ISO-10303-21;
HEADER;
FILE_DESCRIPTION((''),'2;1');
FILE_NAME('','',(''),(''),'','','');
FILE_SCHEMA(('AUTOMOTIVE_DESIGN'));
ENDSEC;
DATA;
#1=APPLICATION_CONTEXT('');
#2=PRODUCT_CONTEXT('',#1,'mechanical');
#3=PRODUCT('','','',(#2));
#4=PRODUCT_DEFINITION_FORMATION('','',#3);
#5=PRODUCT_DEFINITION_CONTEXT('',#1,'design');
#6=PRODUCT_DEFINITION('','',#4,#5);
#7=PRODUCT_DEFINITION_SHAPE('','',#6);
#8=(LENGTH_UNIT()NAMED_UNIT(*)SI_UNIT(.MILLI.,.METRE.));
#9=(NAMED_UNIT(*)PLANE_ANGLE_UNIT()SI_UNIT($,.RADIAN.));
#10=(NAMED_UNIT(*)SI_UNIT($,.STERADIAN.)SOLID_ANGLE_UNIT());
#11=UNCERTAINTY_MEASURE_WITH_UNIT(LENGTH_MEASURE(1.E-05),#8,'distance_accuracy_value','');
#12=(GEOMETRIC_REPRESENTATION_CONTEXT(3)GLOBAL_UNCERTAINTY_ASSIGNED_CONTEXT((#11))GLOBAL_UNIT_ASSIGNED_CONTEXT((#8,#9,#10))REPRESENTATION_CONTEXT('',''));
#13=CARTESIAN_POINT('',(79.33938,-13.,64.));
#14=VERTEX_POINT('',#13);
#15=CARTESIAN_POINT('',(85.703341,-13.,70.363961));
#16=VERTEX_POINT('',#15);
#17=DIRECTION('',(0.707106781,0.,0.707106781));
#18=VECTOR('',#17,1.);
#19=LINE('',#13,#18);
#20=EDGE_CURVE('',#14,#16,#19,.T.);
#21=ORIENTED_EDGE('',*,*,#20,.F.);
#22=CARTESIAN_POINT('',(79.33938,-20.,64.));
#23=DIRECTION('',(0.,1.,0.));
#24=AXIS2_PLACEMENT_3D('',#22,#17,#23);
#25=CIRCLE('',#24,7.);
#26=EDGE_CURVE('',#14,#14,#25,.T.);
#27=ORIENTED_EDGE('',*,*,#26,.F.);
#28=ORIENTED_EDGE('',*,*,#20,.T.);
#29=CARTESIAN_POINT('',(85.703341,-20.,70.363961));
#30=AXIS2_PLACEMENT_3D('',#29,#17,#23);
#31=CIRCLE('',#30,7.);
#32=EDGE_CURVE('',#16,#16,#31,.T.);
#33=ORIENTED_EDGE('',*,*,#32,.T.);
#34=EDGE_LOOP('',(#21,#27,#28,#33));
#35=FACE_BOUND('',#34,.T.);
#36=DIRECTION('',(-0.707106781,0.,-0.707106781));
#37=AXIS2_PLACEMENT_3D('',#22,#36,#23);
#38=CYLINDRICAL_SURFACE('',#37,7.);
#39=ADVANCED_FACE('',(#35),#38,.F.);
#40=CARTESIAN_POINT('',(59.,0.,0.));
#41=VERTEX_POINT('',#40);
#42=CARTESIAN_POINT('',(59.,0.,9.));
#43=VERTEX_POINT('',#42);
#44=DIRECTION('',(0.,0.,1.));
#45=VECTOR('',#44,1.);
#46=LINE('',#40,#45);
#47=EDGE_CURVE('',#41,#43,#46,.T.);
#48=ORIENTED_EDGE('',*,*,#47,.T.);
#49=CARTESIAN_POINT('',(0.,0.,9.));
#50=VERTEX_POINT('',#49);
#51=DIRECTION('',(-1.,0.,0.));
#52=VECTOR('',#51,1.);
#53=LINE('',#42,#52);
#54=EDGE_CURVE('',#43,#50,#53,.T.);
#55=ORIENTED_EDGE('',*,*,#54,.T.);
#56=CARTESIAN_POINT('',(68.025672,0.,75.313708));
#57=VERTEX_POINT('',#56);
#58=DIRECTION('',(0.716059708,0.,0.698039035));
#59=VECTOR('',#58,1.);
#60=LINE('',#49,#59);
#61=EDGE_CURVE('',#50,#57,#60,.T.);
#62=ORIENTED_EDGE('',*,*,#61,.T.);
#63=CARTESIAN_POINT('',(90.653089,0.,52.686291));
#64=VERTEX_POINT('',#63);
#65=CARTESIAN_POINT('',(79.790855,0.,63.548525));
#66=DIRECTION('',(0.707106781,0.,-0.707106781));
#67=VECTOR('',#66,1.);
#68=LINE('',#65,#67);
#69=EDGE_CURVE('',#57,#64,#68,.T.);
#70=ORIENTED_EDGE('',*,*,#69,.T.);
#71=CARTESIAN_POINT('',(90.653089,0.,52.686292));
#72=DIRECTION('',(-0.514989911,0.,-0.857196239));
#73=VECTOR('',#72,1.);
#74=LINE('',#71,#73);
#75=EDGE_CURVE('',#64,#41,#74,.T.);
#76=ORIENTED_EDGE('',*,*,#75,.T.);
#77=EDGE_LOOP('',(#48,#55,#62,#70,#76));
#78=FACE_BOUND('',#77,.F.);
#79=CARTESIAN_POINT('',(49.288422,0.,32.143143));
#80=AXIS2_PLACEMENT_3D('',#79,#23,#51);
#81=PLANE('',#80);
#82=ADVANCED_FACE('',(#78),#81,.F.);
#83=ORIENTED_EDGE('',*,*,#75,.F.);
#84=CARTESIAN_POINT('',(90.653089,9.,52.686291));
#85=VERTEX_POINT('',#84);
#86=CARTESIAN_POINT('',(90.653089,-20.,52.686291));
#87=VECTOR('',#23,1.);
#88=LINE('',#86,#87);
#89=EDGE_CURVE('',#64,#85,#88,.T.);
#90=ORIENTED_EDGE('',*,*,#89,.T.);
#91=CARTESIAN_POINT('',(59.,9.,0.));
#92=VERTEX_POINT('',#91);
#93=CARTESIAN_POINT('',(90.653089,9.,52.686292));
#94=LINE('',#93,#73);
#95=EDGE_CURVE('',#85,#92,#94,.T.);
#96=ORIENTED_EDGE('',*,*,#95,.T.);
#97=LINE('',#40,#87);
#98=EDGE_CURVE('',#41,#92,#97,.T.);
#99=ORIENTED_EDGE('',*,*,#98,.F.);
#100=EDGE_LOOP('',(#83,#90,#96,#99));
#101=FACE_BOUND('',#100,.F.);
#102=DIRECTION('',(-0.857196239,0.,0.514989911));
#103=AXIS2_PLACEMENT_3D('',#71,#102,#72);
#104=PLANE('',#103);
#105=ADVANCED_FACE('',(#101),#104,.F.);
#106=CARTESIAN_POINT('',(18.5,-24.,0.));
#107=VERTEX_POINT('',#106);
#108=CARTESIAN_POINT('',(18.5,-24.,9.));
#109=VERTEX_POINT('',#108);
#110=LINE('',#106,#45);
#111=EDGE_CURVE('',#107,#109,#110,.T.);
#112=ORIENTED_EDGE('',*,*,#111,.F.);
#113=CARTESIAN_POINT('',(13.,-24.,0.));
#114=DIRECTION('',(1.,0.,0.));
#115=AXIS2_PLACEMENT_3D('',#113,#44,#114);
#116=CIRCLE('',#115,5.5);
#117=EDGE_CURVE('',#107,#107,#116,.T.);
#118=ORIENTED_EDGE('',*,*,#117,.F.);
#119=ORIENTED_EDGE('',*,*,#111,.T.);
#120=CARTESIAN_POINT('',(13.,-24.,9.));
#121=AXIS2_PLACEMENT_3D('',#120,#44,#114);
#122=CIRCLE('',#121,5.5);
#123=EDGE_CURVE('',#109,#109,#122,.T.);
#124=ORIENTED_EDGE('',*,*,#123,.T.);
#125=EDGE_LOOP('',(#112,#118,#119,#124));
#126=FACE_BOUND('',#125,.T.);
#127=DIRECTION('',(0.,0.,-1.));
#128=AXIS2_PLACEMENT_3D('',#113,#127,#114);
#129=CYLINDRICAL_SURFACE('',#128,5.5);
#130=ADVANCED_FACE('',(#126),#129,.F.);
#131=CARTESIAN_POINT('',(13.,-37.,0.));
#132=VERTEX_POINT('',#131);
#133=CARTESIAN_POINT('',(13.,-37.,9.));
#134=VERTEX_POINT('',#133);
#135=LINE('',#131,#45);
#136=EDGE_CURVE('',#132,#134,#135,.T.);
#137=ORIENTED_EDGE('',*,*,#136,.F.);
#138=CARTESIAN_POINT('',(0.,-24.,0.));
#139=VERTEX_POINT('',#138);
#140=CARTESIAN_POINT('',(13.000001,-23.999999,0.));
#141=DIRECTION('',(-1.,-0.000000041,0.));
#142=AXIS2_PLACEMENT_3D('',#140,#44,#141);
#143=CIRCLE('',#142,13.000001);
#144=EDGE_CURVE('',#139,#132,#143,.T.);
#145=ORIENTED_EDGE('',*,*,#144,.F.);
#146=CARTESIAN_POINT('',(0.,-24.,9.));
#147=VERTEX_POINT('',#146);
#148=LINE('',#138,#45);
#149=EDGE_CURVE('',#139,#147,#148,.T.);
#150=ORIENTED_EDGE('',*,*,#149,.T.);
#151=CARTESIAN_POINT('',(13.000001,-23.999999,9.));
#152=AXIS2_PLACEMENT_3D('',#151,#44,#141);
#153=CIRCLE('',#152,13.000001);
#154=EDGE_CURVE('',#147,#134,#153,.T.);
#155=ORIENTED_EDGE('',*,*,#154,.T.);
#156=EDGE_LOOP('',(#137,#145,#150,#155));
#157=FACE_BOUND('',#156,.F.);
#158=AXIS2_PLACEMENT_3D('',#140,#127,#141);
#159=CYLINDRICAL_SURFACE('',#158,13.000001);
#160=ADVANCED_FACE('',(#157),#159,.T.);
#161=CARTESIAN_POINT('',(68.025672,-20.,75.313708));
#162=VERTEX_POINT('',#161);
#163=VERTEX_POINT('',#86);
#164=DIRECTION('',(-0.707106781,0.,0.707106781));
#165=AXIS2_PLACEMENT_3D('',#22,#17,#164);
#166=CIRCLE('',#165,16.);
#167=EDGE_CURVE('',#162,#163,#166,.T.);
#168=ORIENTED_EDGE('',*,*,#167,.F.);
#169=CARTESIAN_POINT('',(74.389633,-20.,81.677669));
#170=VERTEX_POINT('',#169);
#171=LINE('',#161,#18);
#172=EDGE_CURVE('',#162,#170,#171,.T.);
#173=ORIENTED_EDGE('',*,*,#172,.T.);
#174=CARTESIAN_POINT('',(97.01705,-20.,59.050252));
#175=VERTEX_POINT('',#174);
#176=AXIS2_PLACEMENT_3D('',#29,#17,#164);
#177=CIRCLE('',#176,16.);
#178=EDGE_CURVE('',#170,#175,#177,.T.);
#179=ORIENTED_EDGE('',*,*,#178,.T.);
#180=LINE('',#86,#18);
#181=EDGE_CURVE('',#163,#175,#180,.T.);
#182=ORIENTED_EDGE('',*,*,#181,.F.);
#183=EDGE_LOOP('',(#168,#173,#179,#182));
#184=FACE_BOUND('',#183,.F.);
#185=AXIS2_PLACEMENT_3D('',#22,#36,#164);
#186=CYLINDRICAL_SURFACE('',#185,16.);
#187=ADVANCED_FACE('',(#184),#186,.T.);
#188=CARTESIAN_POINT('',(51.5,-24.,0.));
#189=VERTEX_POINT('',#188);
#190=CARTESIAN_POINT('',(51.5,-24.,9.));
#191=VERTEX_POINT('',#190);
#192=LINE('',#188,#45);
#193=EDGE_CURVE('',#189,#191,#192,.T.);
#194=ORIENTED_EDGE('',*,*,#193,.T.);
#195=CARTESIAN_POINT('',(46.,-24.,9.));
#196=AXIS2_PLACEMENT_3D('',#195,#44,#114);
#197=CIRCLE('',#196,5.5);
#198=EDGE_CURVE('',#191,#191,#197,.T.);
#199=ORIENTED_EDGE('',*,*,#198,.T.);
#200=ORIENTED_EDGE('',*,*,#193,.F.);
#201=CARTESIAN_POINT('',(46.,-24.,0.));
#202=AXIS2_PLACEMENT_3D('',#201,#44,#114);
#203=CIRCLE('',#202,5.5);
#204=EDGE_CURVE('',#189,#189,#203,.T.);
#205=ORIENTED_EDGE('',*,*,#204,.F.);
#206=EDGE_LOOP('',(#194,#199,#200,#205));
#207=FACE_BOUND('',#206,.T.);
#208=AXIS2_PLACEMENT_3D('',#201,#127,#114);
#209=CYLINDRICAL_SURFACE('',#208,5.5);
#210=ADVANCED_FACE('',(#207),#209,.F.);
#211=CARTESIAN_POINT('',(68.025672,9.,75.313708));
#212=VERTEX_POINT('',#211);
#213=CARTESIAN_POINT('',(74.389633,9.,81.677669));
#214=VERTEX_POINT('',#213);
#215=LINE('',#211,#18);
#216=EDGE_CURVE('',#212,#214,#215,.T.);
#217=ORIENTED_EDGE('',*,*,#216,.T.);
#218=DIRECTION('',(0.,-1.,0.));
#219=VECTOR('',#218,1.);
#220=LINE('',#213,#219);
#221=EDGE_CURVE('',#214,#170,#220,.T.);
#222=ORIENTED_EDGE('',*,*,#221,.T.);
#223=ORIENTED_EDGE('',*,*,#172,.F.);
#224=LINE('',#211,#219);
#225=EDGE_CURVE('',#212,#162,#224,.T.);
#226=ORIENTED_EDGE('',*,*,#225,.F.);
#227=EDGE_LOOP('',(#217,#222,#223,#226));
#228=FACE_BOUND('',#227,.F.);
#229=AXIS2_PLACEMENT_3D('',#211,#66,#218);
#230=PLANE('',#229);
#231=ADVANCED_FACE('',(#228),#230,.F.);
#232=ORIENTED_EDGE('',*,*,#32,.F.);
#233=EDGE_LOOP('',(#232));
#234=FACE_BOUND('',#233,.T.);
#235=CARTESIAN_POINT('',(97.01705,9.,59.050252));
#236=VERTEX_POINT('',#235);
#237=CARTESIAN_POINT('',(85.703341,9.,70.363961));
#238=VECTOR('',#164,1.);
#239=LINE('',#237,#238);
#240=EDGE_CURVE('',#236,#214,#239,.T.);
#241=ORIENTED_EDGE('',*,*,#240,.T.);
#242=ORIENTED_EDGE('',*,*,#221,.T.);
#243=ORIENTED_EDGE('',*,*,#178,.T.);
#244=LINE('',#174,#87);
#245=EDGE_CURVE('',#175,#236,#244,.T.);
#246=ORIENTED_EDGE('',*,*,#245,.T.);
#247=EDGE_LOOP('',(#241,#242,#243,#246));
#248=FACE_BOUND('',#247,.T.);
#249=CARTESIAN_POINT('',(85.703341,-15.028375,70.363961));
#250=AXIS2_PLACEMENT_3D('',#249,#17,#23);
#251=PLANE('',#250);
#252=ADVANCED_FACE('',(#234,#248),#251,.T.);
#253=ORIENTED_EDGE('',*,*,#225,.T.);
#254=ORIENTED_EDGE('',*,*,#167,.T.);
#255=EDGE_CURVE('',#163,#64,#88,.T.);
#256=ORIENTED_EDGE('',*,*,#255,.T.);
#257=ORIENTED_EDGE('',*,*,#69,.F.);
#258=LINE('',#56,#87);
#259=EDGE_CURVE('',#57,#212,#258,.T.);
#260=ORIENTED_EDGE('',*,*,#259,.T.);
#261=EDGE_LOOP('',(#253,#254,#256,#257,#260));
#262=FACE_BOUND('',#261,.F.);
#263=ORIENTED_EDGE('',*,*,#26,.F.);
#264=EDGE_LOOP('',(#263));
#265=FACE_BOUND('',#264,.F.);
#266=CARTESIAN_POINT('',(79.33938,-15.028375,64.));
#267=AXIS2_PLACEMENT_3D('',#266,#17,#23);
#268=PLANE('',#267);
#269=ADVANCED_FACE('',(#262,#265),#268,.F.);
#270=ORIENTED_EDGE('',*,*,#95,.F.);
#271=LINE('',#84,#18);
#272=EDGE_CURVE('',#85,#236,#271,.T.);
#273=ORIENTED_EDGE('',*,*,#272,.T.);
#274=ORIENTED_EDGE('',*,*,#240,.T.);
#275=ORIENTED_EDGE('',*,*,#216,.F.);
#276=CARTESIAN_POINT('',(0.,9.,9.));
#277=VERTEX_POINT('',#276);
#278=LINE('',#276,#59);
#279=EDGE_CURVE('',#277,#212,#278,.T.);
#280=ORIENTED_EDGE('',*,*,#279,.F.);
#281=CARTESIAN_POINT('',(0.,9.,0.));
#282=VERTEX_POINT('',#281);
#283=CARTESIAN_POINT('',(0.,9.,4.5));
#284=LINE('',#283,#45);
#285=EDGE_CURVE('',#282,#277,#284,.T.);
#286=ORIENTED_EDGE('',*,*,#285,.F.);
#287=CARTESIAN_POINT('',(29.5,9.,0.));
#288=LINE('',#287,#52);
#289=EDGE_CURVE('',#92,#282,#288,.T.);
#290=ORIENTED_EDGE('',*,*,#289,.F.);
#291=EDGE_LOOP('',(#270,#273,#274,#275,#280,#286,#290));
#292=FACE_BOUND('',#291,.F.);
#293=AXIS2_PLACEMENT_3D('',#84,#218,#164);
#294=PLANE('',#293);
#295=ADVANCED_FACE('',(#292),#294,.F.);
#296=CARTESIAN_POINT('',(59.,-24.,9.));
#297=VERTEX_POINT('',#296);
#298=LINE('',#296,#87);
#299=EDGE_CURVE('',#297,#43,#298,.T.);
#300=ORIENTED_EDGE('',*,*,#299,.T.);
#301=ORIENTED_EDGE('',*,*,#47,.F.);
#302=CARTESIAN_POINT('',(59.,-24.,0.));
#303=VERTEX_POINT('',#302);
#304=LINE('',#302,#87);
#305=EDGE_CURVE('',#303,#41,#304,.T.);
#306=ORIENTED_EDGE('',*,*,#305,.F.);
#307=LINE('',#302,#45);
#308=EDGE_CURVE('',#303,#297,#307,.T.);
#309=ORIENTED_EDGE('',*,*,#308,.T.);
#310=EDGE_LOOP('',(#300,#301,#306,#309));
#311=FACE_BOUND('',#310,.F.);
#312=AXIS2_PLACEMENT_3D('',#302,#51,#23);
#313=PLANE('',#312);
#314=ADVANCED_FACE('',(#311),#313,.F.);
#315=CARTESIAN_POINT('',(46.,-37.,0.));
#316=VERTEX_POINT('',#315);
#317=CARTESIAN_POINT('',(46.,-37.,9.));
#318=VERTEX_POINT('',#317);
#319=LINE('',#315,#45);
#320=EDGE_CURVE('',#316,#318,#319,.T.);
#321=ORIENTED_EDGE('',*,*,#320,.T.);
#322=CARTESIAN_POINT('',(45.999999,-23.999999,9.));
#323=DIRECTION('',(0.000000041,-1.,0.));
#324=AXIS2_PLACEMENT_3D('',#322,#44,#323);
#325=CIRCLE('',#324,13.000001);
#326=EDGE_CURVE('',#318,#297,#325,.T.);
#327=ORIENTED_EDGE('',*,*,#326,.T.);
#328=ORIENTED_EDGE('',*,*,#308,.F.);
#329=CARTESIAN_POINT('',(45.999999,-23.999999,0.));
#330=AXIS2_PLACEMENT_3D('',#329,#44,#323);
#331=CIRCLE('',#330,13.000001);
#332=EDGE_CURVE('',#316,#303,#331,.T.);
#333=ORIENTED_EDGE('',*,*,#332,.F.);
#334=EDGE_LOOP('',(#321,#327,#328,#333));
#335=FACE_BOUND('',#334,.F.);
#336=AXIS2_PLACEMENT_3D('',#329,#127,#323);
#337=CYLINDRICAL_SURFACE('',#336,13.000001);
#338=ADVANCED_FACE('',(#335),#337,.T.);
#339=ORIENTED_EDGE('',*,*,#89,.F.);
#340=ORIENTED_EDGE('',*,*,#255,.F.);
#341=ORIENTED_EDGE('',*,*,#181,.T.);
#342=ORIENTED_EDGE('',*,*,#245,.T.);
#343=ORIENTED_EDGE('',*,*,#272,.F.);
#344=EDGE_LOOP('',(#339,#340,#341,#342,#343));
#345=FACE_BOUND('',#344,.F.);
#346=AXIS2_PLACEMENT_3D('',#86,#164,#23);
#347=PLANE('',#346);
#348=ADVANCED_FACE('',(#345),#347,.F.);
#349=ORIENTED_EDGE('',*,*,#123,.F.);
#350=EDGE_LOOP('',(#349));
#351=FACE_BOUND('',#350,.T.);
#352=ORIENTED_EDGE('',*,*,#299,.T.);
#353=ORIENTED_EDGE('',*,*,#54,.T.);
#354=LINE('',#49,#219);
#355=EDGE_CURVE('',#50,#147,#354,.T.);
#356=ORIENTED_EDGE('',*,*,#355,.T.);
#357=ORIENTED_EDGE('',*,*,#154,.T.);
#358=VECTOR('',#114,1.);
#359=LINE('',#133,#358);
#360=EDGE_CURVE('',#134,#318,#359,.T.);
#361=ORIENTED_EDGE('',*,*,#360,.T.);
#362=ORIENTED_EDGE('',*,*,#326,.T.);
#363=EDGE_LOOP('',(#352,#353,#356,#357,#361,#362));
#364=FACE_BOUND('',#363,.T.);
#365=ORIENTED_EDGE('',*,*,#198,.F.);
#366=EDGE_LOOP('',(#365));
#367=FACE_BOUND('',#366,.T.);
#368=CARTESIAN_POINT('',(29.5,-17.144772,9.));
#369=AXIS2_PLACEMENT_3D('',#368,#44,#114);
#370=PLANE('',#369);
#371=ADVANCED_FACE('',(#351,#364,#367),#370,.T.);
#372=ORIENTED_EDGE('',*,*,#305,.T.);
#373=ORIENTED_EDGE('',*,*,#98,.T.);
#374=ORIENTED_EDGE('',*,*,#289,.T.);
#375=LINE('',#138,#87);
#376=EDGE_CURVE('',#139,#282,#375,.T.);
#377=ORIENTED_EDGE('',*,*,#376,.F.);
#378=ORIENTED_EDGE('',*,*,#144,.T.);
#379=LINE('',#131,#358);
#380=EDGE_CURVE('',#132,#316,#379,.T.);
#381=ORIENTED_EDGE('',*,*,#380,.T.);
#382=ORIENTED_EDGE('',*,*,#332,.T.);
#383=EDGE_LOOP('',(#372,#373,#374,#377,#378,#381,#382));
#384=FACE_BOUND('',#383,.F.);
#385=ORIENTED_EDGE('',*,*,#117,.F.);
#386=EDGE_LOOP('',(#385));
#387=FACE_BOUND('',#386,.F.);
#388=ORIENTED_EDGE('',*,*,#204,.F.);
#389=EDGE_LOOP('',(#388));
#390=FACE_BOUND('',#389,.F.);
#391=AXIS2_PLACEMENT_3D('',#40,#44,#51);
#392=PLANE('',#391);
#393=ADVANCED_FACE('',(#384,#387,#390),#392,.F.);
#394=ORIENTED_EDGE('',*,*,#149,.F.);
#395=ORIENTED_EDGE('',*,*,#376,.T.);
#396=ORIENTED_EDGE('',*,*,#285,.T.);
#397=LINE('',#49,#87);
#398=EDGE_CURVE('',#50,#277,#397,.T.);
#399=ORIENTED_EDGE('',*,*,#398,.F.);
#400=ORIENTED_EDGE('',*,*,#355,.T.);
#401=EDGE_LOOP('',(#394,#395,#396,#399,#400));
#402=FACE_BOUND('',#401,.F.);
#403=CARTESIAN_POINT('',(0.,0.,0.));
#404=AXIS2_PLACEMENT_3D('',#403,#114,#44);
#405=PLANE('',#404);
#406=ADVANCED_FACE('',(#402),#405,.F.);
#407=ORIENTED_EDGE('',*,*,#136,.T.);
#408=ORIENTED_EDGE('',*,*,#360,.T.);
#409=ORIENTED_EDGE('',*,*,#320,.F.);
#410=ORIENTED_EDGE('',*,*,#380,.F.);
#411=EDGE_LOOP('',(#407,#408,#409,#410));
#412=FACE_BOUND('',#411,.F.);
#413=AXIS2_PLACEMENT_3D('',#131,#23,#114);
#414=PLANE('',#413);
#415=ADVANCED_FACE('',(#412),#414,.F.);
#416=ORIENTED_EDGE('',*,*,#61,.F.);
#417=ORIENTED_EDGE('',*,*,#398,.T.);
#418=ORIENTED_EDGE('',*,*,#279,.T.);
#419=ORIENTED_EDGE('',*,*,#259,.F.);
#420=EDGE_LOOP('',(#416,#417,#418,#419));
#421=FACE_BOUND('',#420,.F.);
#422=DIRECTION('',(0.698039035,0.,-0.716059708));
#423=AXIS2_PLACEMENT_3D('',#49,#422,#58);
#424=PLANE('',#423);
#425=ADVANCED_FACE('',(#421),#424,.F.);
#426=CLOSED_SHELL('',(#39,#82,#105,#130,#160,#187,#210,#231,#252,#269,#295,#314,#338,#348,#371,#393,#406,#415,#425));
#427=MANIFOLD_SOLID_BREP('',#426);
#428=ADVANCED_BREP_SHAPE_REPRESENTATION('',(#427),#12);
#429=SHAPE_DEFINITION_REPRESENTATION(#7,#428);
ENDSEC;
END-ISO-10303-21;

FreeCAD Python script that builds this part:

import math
import FreeCAD as App
import Part
import Sketcher

V = App.Vector
Q = App.Units.Quantity

doc = App.newDocument("Part")
body = doc.addObject("PartDesign::Body", "Body")

sketch1 = body.newObject("Sketcher::SketchObject", "Sketch")
sketch1.AttachmentSupport = (doc.getObject("XY_Plane"), [""])
sketch1.MapMode = "FlatFace"
sketch1.addGeometry([
    Part.LineSegment(V(59, 0, 0), V(0, 0, 0)),
    Part.LineSegment(V(0, 0, 0), V(0, -24, 0)),
    Part.ArcOfCircle(Part.Circle(V(13, -24, 0), V(0, 0, 1), 13), math.radians(-180), math.radians(-90)),
    Part.LineSegment(V(13, -37, 0), V(46, -37, 0)),
    Part.ArcOfCircle(Part.Circle(V(46, -24, 0), V(0, 0, 1), 13), math.radians(-90), math.radians(0)),
    Part.LineSegment(V(59, -24, 0), V(59, 0, 0)),
    Part.Circle(V(13, -24, 0), V(0, 0, 1), 6),
    Part.Circle(V(46, -24, 0), V(0, 0, 1), 6),
], False)
sketch1.addConstraint([
    Sketcher.Constraint("Coincident", 0, 2, 1, 1),
    Sketcher.Constraint("Tangent", 1, 2, 2, 1),
    Sketcher.Constraint("Tangent", 2, 2, 3, 1),
    Sketcher.Constraint("Tangent", 3, 2, 4, 1),
    Sketcher.Constraint("Tangent", 4, 2, 5, 1),
    Sketcher.Constraint("Coincident", 5, 2, 0, 1),
    Sketcher.Constraint("Horizontal", 0),
    Sketcher.Constraint("Vertical", 1),
    Sketcher.Constraint("Horizontal", 3),
    Sketcher.Constraint("Vertical", 5),
    Sketcher.Constraint("Coincident", 0, 2, -1, 1),
    Sketcher.Constraint("Coincident", 6, 3, 2, 3),
    Sketcher.Constraint("Coincident", 7, 3, 4, 3),
    Sketcher.Constraint("Equal", 2, 4),
    Sketcher.Constraint("Equal", 6, 7),
    Sketcher.Constraint("Diameter", 6, Q("11 mm")),
    Sketcher.Constraint("Radius", 2, Q("13.000001 mm")),
    Sketcher.Constraint("DistanceX", 0, 2, 0, 1, Q("59 mm")),
    Sketcher.Constraint("DistanceY", 1, 2, 1, 1, Q("24 mm")),
])
pad1 = body.newObject("PartDesign::Pad", "Pad")
pad1.Profile = sketch1
pad1.Length = 9

sketch2 = body.newObject("Sketcher::SketchObject", "Sketch001")
sketch2.AttachmentSupport = (doc.getObject("XZ_Plane"), [""])
sketch2.MapMode = "FlatFace"
sketch2.addGeometry([
    Part.LineSegment(V(91, 53, 0), V(59, 0, 0)),
    Part.LineSegment(V(59, 0, 0), V(0, 0, 0)),
    Part.LineSegment(V(0, 0, 0), V(0, 9, 0)),
    Part.LineSegment(V(0, 9, 0), V(68, 75, 0)),
    Part.LineSegment(V(68, 75, 0), V(91, 53, 0)),
], False)
sketch2.addConstraint([
    Sketcher.Constraint("Coincident", 0, 2, 1, 1),
    Sketcher.Constraint("Coincident", 1, 2, 2, 1),
    Sketcher.Constraint("Coincident", 2, 2, 3, 1),
    Sketcher.Constraint("Coincident", 3, 2, 4, 1),
    Sketcher.Constraint("Coincident", 4, 2, 0, 1),
    Sketcher.Constraint("Horizontal", 1),
    Sketcher.Constraint("Vertical", 2),
    Sketcher.Constraint("Coincident", 1, 2, -1, 1),
    Sketcher.Constraint("DistanceX", 1, 2, 1, 1, Q("59 mm")),
    Sketcher.Constraint("DistanceY", 2, 1, 2, 2, Q("9 mm")),
    Sketcher.Constraint("Angle", 4, Q("-44.999999 deg")),
    Sketcher.Constraint("Distance", 3, Q("95 mm")),
    Sketcher.Constraint("Distance", 4, Q("31.999999 mm")),
    Sketcher.Constraint("DistanceX", -1, 1, 3, 2, Q("68.025672 mm")),
])
pad2 = body.newObject("PartDesign::Pad", "Pad001")
pad2.Profile = sketch2
pad2.Length = 9
pad2.Reversed = True

sketch3 = body.newObject("Sketcher::SketchObject", "Sketch002")
sketch3.Placement = App.Placement(V(71.66969, 0, 71.66969), App.Rotation(V(0, 1, 0), V(-0.707106781, 0, 0.707106781), V(0.707106781, 0, 0.707106781), "ZXY"))
sketch3.addGeometry([
    Part.LineSegment(V(-20, -27, 0), V(9, -27, 0)),
    Part.LineSegment(V(9, -27, 0), V(9, 5, 0)),
    Part.LineSegment(V(9, 5, 0), V(-20, 5, 0)),
    Part.ArcOfCircle(Part.Circle(V(-20, -11, 0), V(0, 0, 1), 16), math.radians(90), math.radians(270)),
    Part.Circle(V(-20, -11, 0), V(0, 0, 1), 7),
], False)
sketch3.addConstraint([
    Sketcher.Constraint("Coincident", 0, 2, 1, 1),
    Sketcher.Constraint("Coincident", 1, 2, 2, 1),
    Sketcher.Constraint("Tangent", 2, 2, 3, 1),
    Sketcher.Constraint("Tangent", 3, 2, 0, 1),
    Sketcher.Constraint("Horizontal", 0),
    Sketcher.Constraint("Vertical", 1),
    Sketcher.Constraint("Horizontal", 2),
    Sketcher.Constraint("Coincident", 4, 3, 3, 3),
    Sketcher.Constraint("Diameter", 4, Q("14 mm")),
    Sketcher.Constraint("Radius", 3, Q("16 mm")),
    Sketcher.Constraint("DistanceX", 0, 1, 0, 2, Q("29 mm")),
    Sketcher.Constraint("DistanceX", 3, 3, -1, 1, Q("20 mm")),
    Sketcher.Constraint("DistanceY", 3, 3, -1, 1, Q("10.84658 mm")),
])
pad3 = body.newObject("PartDesign::Pad", "Pad002")
pad3.Profile = sketch3
pad3.Length = 9

doc.recompute()
